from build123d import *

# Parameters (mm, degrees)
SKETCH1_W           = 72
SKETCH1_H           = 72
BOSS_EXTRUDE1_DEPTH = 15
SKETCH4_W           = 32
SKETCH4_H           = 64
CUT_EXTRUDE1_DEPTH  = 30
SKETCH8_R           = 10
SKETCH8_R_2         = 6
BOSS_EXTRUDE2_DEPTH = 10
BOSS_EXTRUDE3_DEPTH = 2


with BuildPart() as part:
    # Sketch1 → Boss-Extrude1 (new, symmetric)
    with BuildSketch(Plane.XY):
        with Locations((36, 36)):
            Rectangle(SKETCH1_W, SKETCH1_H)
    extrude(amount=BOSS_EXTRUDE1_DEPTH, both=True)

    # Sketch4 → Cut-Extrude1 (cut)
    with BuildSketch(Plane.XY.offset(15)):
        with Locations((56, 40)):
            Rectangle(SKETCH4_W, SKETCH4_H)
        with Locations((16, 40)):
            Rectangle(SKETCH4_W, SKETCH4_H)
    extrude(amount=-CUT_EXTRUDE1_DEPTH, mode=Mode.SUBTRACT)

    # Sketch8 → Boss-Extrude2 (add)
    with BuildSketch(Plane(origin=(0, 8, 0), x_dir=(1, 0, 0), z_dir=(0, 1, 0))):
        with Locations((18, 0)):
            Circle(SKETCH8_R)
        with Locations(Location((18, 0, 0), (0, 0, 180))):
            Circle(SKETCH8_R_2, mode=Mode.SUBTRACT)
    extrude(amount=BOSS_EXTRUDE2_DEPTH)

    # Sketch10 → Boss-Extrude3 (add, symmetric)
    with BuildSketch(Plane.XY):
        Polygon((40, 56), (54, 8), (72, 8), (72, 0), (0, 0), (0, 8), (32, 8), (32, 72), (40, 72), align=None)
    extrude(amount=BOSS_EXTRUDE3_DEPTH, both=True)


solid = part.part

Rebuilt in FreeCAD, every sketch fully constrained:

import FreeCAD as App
import Part
import Sketcher
Q = App.Units.Quantity


def add_polygon(sketch, points):
    """Adds a closed chain of lines whose ends are joined by coincident constraints."""
    first, n = sketch.GeometryCount, len(points)
    for a, b in zip(points, points[1:] + points[:1]):
        sketch.addGeometry(Part.LineSegment(App.Vector(*a, 0), App.Vector(*b, 0)), False)
    for i in range(n):
        sketch.addConstraint(Sketcher.Constraint("Coincident", first + i, 2, first + (i + 1) % n, 1))

doc = App.newDocument("Part")
body = doc.addObject("PartDesign::Body", "Body")

# Sketch on XY plane
sketch1 = body.newObject("Sketcher::SketchObject", "Sketch")
sketch1.AttachmentSupport = (doc.getObject("XY_Plane"), [""])
sketch1.MapMode = "FlatFace"
add_polygon(sketch1, [(0, 72), (0, 0), (72, 0), (72, 72)])  # lines 0-3
sketch1.addConstraint(Sketcher.Constraint("Vertical", 0))
sketch1.addConstraint(Sketcher.Constraint("Horizontal", 1))
sketch1.addConstraint(Sketcher.Constraint("Vertical", 2))
sketch1.addConstraint(Sketcher.Constraint("Horizontal", 3))
sketch1.addConstraint(Sketcher.Constraint("Coincident", 0, 2, -1, 1))
sketch1.addConstraint(Sketcher.Constraint("Equal", 3, 0))
sketch1.addConstraint(Sketcher.Constraint("DistanceX", 1, 1, 1, 2, Q("72 mm")))
pad1 = body.newObject("PartDesign::Pad", "Pad")
pad1.Profile = sketch1
pad1.Length = 30
pad1.Midplane = True

# Sketch on XY plane
sketch2 = body.newObject("Sketcher::SketchObject", "Sketch001")
sketch2.AttachmentSupport = (doc.getObject("XY_Plane"), [""])
sketch2.MapMode = "FlatFace"
sketch2.AttachmentOffset = App.Placement(App.Vector(0, 0, 15), App.Rotation())
add_polygon(sketch2, [(40, 72), (40, 8), (72, 8), (72, 72)])  # lines 0-3
add_polygon(sketch2, [(0, 72), (0, 8), (32, 8), (32, 72)])  # lines 4-7
sketch2.addConstraint(Sketcher.Constraint("Vertical", 0))
sketch2.addConstraint(Sketcher.Constraint("Horizontal", 1))
sketch2.addConstraint(Sketcher.Constraint("Vertical", 2))
sketch2.addConstraint(Sketcher.Constraint("Horizontal", 3))
sketch2.addConstraint(Sketcher.Constraint("Vertical", 4))
sketch2.addConstraint(Sketcher.Constraint("Horizontal", 5))
sketch2.addConstraint(Sketcher.Constraint("Vertical", 6))
sketch2.addConstraint(Sketcher.Constraint("Horizontal", 7))
sketch2.addConstraint(Sketcher.Constraint("PointOnObject", 4, 2, -2))
sketch2.addConstraint(Sketcher.Constraint("Horizontal", 1, 2, 4, 2))
sketch2.addConstraint(Sketcher.Constraint("Horizontal", 3, 2, 6, 2))
sketch2.addConstraint(Sketcher.Constraint("Equal", 3, 5))
sketch2.addConstraint(Sketcher.Constraint("DistanceX", 1, 1, 1, 2, Q("32 mm")))
sketch2.addConstraint(Sketcher.Constraint("DistanceY", 0, 2, 0, 1, Q("64 mm")))
sketch2.addConstraint(Sketcher.Constraint("DistanceX", -1, 1, 0, 2, Q("40 mm")))
sketch2.addConstraint(Sketcher.Constraint("DistanceY", -1, 1, 0, 2, Q("8 mm")))
pocket1 = body.newObject("PartDesign::Pocket", "Pocket")
pocket1.Profile = sketch2
pocket1.Length = 30

# Sketch on XZ plane
sketch3 = body.newObject("Sketcher::SketchObject", "Sketch002")
sketch3.AttachmentSupport = (doc.getObject("XZ_Plane"), [""])
sketch3.MapMode = "FlatFace"
sketch3.AttachmentOffset = App.Placement(App.Vector(0, 0, -8), App.Rotation())
sketch3.addGeometry(Part.Circle(App.Vector(18, 0, 0), App.Vector(0, 0, 1), 10), False)
sketch3.addGeometry(Part.Circle(App.Vector(18, 0, 0), App.Vector(0, 0, 1), 6), False)
sketch3.addConstraint(Sketcher.Constraint("Coincident", 1, 3, 0, 3))
sketch3.addConstraint(Sketcher.Constraint("PointOnObject", 0, 3, -1))
sketch3.addConstraint(Sketcher.Constraint("Diameter", 0, Q("20 mm")))
sketch3.addConstraint(Sketcher.Constraint("Diameter", 1, Q("12 mm")))
sketch3.addConstraint(Sketcher.Constraint("DistanceX", -1, 1, 0, 3, Q("18 mm")))
pad2 = body.newObject("PartDesign::Pad", "Pad001")
pad2.Profile = sketch3
pad2.Length = 10
pad2.Reversed = True

# Sketch on XY plane
sketch4 = body.newObject("Sketcher::SketchObject", "Sketch003")
sketch4.AttachmentSupport = (doc.getObject("XY_Plane"), [""])
sketch4.MapMode = "FlatFace"
add_polygon(sketch4, [(54, 8), (40, 56), (40, 72), (32, 72), (32, 8), (0, 8), (0, 0), (72, 0), (72, 8)])  # lines 0-8
sketch4.addConstraint(Sketcher.Constraint("Vertical", 1))
sketch4.addConstraint(Sketcher.Constraint("Horizontal", 2))
sketch4.addConstraint(Sketcher.Constraint("Vertical", 3))
sketch4.addConstraint(Sketcher.Constraint("Horizontal", 4))
sketch4.addConstraint(Sketcher.Constraint("Vertical", 5))
sketch4.addConstraint(Sketcher.Constraint("Horizontal", 6))
sketch4.addConstraint(Sketcher.Constraint("Vertical", 7))
sketch4.addConstraint(Sketcher.Constraint("Horizontal", 8))
sketch4.addConstraint(Sketcher.Constraint("Coincident", 5, 2, -1, 1))
sketch4.addConstraint(Sketcher.Constraint("Horizontal", 4, 2, 7, 2))
sketch4.addConstraint(Sketcher.Constraint("Equal", 2, 5))
sketch4.addConstraint(Sketcher.Constraint("DistanceX", 2, 2, 2, 1, Q("8 mm")))
sketch4.addConstraint(Sketcher.Constraint("DistanceX", 4, 2, 4, 1, Q("32 mm")))
sketch4.addConstraint(Sketcher.Constraint("DistanceX", 6, 1, 6, 2, Q("72 mm")))
sketch4.addConstraint(Sketcher.Constraint("DistanceX", 8, 2, 8, 1, Q("18 mm")))
sketch4.addConstraint(Sketcher.Constraint("DistanceY", 1, 1, 1, 2, Q("16 mm")))
sketch4.addConstraint(Sketcher.Constraint("DistanceY", 3, 2, 3, 1, Q("64 mm")))
pad3 = body.newObject("PartDesign::Pad", "Pad002")
pad3.Profile = sketch4
pad3.Length = 4
pad3.Midplane = True

doc.recompute()
